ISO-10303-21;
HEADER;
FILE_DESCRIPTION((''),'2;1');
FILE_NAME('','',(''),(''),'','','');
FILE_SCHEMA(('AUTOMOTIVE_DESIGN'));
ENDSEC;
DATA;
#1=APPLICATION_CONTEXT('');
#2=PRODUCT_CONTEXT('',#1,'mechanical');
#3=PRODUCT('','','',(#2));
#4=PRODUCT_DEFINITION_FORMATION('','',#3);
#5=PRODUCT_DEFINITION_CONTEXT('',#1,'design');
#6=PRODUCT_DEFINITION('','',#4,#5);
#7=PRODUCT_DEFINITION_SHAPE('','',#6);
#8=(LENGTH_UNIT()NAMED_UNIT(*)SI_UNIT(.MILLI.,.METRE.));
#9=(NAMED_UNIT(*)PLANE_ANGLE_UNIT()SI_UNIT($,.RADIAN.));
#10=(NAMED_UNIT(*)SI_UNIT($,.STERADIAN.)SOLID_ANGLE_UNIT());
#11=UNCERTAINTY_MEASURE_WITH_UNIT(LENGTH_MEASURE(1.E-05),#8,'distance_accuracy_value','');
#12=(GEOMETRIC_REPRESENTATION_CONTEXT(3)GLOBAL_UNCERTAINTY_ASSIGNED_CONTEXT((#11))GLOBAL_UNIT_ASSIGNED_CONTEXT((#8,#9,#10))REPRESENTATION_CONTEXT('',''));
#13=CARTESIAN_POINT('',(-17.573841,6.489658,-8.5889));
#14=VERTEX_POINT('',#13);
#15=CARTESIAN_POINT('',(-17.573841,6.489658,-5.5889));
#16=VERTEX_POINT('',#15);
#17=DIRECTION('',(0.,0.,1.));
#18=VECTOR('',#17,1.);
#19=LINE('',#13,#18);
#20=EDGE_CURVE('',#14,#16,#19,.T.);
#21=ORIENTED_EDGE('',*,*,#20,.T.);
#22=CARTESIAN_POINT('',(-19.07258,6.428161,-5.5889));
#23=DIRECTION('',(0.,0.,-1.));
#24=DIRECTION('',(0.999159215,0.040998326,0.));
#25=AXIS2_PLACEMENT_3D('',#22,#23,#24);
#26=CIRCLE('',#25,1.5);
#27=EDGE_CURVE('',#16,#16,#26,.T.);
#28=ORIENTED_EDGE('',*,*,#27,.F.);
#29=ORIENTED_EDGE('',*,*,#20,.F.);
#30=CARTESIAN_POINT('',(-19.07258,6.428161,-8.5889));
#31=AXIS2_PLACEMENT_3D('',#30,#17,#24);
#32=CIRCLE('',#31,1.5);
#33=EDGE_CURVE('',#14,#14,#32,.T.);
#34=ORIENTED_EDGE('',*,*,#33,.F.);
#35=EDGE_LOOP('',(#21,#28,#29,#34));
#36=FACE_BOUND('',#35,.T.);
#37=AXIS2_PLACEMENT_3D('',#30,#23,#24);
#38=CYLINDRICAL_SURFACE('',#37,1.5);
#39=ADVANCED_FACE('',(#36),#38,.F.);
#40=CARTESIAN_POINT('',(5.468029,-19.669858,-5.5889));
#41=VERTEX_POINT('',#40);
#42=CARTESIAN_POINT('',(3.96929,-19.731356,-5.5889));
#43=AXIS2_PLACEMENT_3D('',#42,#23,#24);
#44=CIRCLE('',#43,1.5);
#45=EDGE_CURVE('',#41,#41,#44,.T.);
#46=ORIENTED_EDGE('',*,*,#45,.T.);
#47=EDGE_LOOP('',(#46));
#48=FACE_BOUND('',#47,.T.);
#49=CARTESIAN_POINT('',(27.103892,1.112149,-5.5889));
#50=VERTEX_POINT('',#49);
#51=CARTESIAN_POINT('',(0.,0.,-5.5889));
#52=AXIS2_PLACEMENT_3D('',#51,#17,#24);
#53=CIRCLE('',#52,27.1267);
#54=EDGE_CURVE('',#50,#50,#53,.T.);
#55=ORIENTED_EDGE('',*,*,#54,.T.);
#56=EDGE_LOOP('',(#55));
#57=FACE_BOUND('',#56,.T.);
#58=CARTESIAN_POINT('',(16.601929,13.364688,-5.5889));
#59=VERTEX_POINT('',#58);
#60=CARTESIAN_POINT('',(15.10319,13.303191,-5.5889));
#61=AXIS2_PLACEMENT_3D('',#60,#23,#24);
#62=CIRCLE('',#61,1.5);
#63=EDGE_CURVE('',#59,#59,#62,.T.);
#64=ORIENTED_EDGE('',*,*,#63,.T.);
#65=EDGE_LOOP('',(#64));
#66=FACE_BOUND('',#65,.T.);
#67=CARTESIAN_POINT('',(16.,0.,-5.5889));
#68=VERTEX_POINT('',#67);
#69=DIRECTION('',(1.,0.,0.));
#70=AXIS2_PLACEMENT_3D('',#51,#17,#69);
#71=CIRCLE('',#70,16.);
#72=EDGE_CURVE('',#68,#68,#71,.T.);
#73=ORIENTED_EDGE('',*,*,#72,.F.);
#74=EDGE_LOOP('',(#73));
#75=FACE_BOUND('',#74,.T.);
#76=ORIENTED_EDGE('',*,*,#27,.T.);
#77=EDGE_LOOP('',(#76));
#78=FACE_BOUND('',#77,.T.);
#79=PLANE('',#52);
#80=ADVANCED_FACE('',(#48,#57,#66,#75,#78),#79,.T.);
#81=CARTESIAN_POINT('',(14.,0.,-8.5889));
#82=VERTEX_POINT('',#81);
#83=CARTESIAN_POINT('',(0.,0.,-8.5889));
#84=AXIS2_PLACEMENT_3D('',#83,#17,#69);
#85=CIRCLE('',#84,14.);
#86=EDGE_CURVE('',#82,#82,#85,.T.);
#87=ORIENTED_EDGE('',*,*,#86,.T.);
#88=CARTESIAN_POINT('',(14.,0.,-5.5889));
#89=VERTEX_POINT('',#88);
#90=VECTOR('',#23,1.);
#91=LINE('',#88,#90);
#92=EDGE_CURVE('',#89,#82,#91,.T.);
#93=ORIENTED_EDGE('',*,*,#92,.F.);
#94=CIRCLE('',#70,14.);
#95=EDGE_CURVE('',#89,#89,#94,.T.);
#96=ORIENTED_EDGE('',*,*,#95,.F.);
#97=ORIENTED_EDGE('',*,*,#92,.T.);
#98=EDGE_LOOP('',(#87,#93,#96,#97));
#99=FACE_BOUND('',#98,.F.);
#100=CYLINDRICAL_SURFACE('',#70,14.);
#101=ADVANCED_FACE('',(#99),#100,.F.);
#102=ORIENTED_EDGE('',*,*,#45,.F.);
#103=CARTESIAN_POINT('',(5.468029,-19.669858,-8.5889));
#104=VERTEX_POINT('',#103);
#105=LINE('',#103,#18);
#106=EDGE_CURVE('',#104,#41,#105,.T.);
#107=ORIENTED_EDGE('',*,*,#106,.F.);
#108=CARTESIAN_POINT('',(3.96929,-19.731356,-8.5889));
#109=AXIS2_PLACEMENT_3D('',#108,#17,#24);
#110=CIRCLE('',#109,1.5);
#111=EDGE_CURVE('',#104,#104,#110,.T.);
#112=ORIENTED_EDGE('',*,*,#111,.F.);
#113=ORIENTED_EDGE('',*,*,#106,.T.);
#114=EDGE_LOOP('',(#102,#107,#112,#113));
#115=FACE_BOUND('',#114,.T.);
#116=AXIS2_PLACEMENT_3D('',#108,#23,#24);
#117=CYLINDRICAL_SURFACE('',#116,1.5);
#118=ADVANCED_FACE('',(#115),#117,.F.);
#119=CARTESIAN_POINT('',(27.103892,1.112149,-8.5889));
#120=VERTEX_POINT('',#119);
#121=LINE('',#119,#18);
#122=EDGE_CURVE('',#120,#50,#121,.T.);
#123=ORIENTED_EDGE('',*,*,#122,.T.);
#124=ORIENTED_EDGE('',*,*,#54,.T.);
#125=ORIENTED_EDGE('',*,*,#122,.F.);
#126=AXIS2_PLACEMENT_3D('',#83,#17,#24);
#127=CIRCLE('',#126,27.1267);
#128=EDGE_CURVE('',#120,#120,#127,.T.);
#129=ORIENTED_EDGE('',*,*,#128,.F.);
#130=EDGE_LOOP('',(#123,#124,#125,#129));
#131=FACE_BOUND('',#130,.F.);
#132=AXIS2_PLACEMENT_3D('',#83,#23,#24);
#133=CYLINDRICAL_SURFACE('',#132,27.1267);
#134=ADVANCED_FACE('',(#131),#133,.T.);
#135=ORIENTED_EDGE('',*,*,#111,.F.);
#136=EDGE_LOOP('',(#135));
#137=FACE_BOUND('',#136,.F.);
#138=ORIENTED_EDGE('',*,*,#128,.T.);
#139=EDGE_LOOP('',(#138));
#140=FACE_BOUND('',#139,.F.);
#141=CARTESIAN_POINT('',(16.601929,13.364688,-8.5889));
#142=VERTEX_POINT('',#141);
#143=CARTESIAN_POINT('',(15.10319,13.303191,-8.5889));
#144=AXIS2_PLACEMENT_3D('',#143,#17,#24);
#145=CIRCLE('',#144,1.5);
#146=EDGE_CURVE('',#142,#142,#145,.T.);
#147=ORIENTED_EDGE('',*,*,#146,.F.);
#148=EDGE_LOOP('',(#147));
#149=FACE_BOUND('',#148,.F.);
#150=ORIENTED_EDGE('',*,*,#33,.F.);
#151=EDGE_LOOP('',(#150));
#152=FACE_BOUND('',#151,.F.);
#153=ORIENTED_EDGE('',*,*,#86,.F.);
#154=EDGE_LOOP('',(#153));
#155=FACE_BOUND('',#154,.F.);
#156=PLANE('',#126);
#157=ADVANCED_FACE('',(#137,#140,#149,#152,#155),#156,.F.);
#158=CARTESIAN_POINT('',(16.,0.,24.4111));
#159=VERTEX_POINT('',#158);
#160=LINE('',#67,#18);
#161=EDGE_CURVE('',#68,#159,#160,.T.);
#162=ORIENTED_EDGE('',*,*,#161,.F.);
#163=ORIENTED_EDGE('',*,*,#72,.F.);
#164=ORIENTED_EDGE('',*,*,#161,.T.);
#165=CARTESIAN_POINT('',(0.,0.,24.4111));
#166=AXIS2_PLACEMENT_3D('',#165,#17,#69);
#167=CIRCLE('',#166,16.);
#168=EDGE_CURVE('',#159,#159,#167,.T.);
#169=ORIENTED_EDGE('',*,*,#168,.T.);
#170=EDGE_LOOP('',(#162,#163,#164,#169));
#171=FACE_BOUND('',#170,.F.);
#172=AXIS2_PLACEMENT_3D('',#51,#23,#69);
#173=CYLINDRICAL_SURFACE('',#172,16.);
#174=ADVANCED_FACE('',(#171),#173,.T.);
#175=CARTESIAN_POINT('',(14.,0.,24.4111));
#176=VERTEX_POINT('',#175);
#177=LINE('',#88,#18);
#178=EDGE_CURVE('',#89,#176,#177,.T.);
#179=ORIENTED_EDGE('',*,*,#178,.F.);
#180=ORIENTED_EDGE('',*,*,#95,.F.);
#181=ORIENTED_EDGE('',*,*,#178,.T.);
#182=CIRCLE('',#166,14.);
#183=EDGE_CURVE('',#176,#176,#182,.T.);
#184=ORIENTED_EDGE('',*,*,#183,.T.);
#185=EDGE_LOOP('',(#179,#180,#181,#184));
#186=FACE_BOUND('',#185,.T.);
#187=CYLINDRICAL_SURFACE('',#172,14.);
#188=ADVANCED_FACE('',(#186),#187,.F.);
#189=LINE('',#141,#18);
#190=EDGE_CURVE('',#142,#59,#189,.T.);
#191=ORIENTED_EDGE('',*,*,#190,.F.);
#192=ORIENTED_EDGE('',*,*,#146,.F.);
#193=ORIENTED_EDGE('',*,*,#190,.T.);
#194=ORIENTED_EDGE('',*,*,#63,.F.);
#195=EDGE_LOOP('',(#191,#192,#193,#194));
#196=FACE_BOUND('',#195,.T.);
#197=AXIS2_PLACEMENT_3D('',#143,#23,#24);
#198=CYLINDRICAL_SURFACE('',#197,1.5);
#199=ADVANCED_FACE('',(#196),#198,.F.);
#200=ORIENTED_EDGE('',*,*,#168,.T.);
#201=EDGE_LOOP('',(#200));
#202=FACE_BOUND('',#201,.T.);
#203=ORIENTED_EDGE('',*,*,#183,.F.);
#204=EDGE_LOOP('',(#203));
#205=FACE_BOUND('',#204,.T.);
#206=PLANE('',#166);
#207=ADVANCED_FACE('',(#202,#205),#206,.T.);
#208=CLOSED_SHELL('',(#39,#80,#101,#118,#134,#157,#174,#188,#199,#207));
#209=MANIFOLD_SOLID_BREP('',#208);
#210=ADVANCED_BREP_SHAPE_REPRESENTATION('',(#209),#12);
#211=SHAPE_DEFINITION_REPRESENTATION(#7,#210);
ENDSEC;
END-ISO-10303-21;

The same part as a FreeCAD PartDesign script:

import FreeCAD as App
import Part
import Sketcher

V = App.Vector

doc = App.newDocument("Part")
body = doc.addObject("PartDesign::Body", "Body")

sketch1 = body.newObject("Sketcher::SketchObject", "Sketch")
sketch1.AttachmentSupport = (doc.getObject("XY_Plane"), [""])
sketch1.MapMode = "FlatFace"
sketch1.AttachmentOffset = App.Placement(V(0, 0, -8.5889), App.Rotation())
sketch1.addGeometry(Part.Circle(V(0, 0, 0), V(0, 0, 1), 27), False)
sketch1.addConstraint([
    Sketcher.Constraint("Coincident", 0, 3, -1, 1),
    Sketcher.Constraint("Diameter", 0, 54.2534),
])
pad1 = body.newObject("PartDesign::Pad", "Pad")
pad1.Profile = sketch1
pad1.Length = 3

sketch2 = body.newObject("Sketcher::SketchObject", "Sketch001")
sketch2.AttachmentSupport = (doc.getObject("XY_Plane"), [""])
sketch2.MapMode = "FlatFace"
sketch2.AttachmentOffset = App.Placement(V(0, 0, -5.5889), App.Rotation())
sketch2.addGeometry([
    Part.Circle(V(0, 0, 0), V(0, 0, 1), 16),
    Part.Circle(V(0, 0, 0), V(0, 0, 1), 14),
], False)
sketch2.addConstraint([
    Sketcher.Constraint("Coincident", 0, 3, -1, 1),
    Sketcher.Constraint("Coincident", 1, 3, -1, 1),
    Sketcher.Constraint("Diameter", 0, 32.0),
    Sketcher.Constraint("Diameter", 1, 28.0),
])
pad2 = body.newObject("PartDesign::Pad", "Pad001")
pad2.Profile = sketch2
pad2.Length = 30

sketch3 = body.newObject("Sketcher::SketchObject", "Sketch002")
sketch3.AttachmentSupport = (doc.getObject("XY_Plane"), [""])
sketch3.MapMode = "FlatFace"
sketch3.AttachmentOffset = App.Placement(V(0, 0, -5.5889), App.Rotation())
sketch3.addGeometry(Part.Circle(V(0, 0, 0), V(0, 0, 1), 14), False)
sketch3.addConstraint([
    Sketcher.Constraint("Coincident", 0, 3, -1, 1),
    Sketcher.Constraint("Diameter", 0, 28.0),
])
pocket1 = body.newObject("PartDesign::Pocket", "Pocket")
pocket1.Profile = sketch3
pocket1.Type = "ThroughAll"

sketch4 = body.newObject("Sketcher::SketchObject", "Sketch003")
sketch4.AttachmentSupport = (doc.getObject("XY_Plane"), [""])
sketch4.MapMode = "FlatFace"
sketch4.AttachmentOffset = App.Placement(V(0, 0, -8.5889), App.Rotation())
sketch4.addGeometry([
    Part.Circle(V(15.1, 13.3, 0), V(0, 0, 1), 1.5),
    Part.Circle(V(4, -19.7, 0), V(0, 0, 1), 1.5),
    Part.Circle(V(-19.1, 6.4, 0), V(0, 0, 1), 1.5),
], False)
sketch4.addConstraint([
    Sketcher.Constraint("Equal", 0, 1),
    Sketcher.Constraint("Equal", 1, 2),
    Sketcher.Constraint("Diameter", 0, 3.0),
    Sketcher.Constraint("DistanceX", 1, 3, 0, 3, 11.134),
    Sketcher.Constraint("DistanceY", 2, 3, 0, 3, 6.875),
    Sketcher.Constraint("DistanceX", -1, 1, 0, 3, 15.1032),
    Sketcher.Constraint("DistanceY", -1, 1, 0, 3, 13.3032),
    Sketcher.Constraint("DistanceY", 1, 3, -1, 1, 19.7314),
    Sketcher.Constraint("DistanceX", 2, 3, -1, 1, 19.0726),
])
pocket2 = body.newObject("PartDesign::Pocket", "Pocket001")
pocket2.Profile = sketch4
pocket2.Type = "ThroughAll"
pocket2.Reversed = True

doc.recompute()
